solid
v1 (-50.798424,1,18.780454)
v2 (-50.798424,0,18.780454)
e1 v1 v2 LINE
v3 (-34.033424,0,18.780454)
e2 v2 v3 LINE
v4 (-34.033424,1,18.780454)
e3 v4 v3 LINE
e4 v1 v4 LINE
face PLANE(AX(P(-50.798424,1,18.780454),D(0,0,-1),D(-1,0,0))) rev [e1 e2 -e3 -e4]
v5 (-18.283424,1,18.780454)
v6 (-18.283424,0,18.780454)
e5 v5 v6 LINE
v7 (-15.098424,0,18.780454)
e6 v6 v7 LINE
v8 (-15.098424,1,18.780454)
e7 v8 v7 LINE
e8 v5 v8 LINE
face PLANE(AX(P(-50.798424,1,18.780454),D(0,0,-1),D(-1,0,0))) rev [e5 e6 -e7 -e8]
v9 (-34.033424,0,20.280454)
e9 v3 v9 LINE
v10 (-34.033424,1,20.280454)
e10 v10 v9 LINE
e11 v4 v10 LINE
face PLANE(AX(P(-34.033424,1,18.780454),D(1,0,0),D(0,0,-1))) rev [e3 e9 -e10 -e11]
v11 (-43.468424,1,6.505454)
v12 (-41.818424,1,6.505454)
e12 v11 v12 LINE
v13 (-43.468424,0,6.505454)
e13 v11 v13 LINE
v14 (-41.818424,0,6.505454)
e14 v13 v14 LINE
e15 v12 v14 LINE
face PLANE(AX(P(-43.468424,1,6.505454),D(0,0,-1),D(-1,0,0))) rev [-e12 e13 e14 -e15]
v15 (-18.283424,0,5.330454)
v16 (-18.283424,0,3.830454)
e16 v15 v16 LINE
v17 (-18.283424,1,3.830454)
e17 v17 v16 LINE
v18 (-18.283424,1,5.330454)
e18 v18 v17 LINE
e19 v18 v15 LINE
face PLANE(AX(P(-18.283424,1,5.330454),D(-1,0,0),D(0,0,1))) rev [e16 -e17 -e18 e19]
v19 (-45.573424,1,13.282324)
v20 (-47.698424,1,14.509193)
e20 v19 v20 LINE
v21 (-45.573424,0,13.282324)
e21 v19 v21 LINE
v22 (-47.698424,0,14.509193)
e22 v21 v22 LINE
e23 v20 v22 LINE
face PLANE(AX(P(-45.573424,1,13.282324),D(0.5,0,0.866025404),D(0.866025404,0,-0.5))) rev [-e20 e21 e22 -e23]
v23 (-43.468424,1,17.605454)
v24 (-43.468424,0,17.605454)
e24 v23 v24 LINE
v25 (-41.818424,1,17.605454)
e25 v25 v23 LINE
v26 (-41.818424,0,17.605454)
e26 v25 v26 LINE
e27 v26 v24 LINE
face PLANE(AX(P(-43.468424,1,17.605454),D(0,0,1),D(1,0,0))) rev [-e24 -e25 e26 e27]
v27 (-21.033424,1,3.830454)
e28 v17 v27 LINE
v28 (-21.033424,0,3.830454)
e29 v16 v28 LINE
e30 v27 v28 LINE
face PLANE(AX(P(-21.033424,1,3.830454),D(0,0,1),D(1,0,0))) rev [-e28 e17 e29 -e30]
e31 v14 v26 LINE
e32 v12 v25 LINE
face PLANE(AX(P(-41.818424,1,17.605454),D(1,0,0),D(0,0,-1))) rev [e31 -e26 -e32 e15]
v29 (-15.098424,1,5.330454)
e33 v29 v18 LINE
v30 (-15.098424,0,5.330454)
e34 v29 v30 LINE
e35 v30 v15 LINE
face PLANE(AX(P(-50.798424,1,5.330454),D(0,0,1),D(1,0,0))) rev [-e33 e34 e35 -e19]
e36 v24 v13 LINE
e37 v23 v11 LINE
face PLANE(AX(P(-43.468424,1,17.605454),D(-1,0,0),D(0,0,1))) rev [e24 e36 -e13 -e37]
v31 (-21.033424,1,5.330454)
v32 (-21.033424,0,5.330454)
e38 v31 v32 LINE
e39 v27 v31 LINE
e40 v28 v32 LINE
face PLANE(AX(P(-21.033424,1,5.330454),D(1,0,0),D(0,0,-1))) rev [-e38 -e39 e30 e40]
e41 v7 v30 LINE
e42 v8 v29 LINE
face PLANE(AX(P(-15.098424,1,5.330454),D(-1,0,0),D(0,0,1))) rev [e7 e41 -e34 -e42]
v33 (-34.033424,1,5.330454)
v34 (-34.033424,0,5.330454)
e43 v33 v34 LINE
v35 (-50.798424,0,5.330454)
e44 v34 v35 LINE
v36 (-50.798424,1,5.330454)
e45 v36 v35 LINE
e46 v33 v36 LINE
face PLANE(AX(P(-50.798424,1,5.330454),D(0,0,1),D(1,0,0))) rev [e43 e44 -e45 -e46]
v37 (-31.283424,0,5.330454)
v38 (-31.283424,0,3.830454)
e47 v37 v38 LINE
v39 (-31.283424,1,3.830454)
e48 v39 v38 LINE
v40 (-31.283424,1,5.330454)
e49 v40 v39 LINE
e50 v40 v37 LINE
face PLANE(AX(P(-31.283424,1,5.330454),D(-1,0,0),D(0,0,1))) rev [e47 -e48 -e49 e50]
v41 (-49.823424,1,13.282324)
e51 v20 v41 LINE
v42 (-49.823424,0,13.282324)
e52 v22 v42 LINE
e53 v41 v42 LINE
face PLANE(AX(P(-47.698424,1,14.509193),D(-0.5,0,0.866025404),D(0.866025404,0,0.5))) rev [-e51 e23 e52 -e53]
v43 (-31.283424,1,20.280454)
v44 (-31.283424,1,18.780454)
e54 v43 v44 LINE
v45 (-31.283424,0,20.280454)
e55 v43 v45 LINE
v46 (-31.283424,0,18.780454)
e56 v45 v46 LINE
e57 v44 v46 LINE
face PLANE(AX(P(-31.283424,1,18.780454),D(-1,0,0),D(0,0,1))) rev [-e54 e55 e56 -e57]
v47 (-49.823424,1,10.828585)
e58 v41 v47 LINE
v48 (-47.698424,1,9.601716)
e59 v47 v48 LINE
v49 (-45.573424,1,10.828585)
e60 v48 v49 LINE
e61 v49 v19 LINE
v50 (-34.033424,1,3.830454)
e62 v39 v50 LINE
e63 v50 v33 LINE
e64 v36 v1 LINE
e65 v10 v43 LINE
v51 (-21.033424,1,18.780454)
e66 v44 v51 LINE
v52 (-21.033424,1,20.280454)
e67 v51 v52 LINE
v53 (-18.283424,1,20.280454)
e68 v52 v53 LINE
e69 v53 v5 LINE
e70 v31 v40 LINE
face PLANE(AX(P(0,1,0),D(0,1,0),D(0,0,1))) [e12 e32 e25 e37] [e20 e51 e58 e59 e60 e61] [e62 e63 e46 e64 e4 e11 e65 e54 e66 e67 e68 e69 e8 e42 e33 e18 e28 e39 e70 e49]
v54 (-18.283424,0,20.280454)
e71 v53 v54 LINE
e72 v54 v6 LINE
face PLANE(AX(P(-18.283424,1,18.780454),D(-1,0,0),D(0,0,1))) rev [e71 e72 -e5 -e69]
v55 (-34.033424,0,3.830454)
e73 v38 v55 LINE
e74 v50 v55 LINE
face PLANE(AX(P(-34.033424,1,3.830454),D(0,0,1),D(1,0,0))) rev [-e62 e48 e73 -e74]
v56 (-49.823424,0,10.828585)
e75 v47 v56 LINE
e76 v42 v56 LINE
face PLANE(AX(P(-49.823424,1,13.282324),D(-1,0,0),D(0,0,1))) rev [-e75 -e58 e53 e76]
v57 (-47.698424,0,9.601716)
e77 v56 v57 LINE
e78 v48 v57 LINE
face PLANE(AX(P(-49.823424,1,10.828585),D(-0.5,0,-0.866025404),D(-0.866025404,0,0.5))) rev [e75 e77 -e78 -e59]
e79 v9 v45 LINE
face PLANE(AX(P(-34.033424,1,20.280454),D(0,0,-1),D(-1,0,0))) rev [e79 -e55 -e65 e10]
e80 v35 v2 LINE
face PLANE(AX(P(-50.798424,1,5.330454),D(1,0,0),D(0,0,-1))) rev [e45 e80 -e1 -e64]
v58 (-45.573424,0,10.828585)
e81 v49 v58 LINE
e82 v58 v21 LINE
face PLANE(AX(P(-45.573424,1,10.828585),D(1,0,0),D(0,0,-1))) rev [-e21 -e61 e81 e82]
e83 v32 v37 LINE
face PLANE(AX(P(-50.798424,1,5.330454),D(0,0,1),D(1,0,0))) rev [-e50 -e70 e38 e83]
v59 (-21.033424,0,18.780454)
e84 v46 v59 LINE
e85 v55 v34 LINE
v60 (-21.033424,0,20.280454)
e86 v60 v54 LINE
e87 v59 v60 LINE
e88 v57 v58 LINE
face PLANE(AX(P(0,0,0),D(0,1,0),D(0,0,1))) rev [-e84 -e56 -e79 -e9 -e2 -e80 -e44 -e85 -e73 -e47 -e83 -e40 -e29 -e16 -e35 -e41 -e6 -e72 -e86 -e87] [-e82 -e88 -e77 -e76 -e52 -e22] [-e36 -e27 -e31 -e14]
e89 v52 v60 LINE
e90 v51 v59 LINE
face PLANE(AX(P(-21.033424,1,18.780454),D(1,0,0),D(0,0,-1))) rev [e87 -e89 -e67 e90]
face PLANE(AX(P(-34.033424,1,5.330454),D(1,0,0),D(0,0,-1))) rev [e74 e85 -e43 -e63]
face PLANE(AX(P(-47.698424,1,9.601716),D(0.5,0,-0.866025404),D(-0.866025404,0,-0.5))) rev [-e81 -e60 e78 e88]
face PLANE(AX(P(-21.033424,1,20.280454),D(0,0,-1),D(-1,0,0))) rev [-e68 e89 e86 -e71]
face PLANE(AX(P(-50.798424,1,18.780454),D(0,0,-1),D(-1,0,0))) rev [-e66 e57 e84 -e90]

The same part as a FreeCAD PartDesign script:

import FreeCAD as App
import Part
import Sketcher

V = App.Vector
Q = App.Units.Quantity

doc = App.newDocument("Part")
params = doc.addObject("Spreadsheet::Sheet", "Params")
for row, (alias, value) in enumerate([
    ("sketch1_width", "35.7 mm"),
    ("sketch1_height", "13.45 mm"),
    ("pad1_length", "1 mm"),
    ("sketch2_height", "1.5 mm"),
    ("sketch2_width", "2.75 mm"),
    ("pad2_length", "1 mm"),
    ("sketch3_height", "11.1 mm"),
    ("sketch3_width", "1.65 mm"),
    ("pocket1_length", "1 mm"),
    ("pocket2_length", "1 mm"),
], start=1):
    params.set(f"A{row}", alias)
    params.set(f"B{row}", "=" + value)
    params.setAlias(f"B{row}", alias)

body = doc.addObject("PartDesign::Body", "Body")

# Sketch on XZ plane
sketch1 = body.newObject("Sketcher::SketchObject", "Sketch")
sketch1.AttachmentSupport = (doc.getObject("XZ_Plane"), [""])
sketch1.MapMode = "FlatFace"
sketch1.addGeometry(Part.LineSegment(V(-51, 5, 0), V(-51, 19, 0)), False)
sketch1.addGeometry(Part.LineSegment(V(-51, 19, 0), V(-15, 19, 0)), False)
sketch1.addGeometry(Part.LineSegment(V(-15, 19, 0), V(-15, 5, 0)), False)
sketch1.addGeometry(Part.LineSegment(V(-15, 5, 0), V(-51, 5, 0)), False)
sketch1.addConstraint(Sketcher.Constraint("Coincident", 0, 2, 1, 1))
sketch1.addConstraint(Sketcher.Constraint("Coincident", 1, 2, 2, 1))
sketch1.addConstraint(Sketcher.Constraint("Coincident", 2, 2, 3, 1))
sketch1.addConstraint(Sketcher.Constraint("Coincident", 3, 2, 0, 1))
sketch1.addConstraint(Sketcher.Constraint("Vertical", 0))
sketch1.addConstraint(Sketcher.Constraint("Horizontal", 1))
sketch1.addConstraint(Sketcher.Constraint("Vertical", 2))
sketch1.addConstraint(Sketcher.Constraint("Horizontal", 3))
sketch1.addConstraint(Sketcher.Constraint("DistanceX", 1, 1, 1, 2, 35.7))
sketch1.addConstraint(Sketcher.Constraint("DistanceY", 0, 1, 0, 2, 13.45))
sketch1.addConstraint(Sketcher.Constraint("DistanceX", 0, 2, -1, 1, 50.798424))
sketch1.addConstraint(Sketcher.Constraint("DistanceY", -1, 1, 0, 2, 18.780454))
sketch1.setExpression("Constraints[8]", "Params.sketch1_width")
sketch1.setExpression("Constraints[9]", "Params.sketch1_height")
pad1 = body.newObject("PartDesign::Pad", "Pad")
pad1.Profile = sketch1
pad1.setExpression("Length", "Params.pad1_length")
pad1.Reversed = True

# Sketch on XZ plane
sketch2 = body.newObject("Sketcher::SketchObject", "Sketch001")
sketch2.AttachmentSupport = (doc.getObject("XZ_Plane"), [""])
sketch2.MapMode = "FlatFace"
sketch2.addGeometry(Part.LineSegment(V(-34, 3.8, 0), V(-34, 5.3, 0)), False)
sketch2.addGeometry(Part.LineSegment(V(-34, 5.3, 0), V(-31.3, 5.3, 0)), False)
sketch2.addGeometry(Part.LineSegment(V(-31.3, 5.3, 0), V(-31.3, 3.8, 0)), False)
sketch2.addGeometry(Part.LineSegment(V(-31.3, 3.8, 0), V(-34, 3.8, 0)), False)
sketch2.addGeometry(Part.LineSegment(V(-34, 18.8, 0), V(-34, 20.3, 0)), False)
sketch2.addGeometry(Part.LineSegment(V(-34, 20.3, 0), V(-31.3, 20.3, 0)), False)
sketch2.addGeometry(Part.LineSegment(V(-31.3, 20.3, 0), V(-31.3, 18.8, 0)), False)
sketch2.addGeometry(Part.LineSegment(V(-31.3, 18.8, 0), V(-34, 18.8, 0)), False)
sketch2.addGeometry(Part.LineSegment(V(-21, 3.8, 0), V(-21, 5.3, 0)), False)
sketch2.addGeometry(Part.LineSegment(V(-21, 5.3, 0), V(-18.3, 5.3, 0)), False)
sketch2.addGeometry(Part.LineSegment(V(-18.3, 5.3, 0), V(-18.3, 3.8, 0)), False)
sketch2.addGeometry(Part.LineSegment(V(-18.3, 3.8, 0), V(-21, 3.8, 0)), False)
sketch2.addGeometry(Part.LineSegment(V(-21, 18.8, 0), V(-21, 20.3, 0)), False)
sketch2.addGeometry(Part.LineSegment(V(-21, 20.3, 0), V(-18.3, 20.3, 0)), False)
sketch2.addGeometry(Part.LineSegment(V(-18.3, 20.3, 0), V(-18.3, 18.8, 0)), False)
sketch2.addGeometry(Part.LineSegment(V(-18.3, 18.8, 0), V(-21, 18.8, 0)), False)
sketch2.addConstraint(Sketcher.Constraint("Coincident", 0, 2, 1, 1))
sketch2.addConstraint(Sketcher.Constraint("Coincident", 1, 2, 2, 1))
sketch2.addConstraint(Sketcher.Constraint("Coincident", 2, 2, 3, 1))
sketch2.addConstraint(Sketcher.Constraint("Coincident", 3, 2, 0, 1))
sketch2.addConstraint(Sketcher.Constraint("Coincident", 4, 2, 5, 1))
sketch2.addConstraint(Sketcher.Constraint("Coincident", 5, 2, 6, 1))
sketch2.addConstraint(Sketcher.Constraint("Coincident", 6, 2, 7, 1))
sketch2.addConstraint(Sketcher.Constraint("Coincident", 7, 2, 4, 1))
sketch2.addConstraint(Sketcher.Constraint("Coincident", 8, 2, 9, 1))
sketch2.addConstraint(Sketcher.Constraint("Coincident", 9, 2, 10, 1))
sketch2.addConstraint(Sketcher.Constraint("Coincident", 10, 2, 11, 1))
sketch2.addConstraint(Sketcher.Constraint("Coincident", 11, 2, 8, 1))
sketch2.addConstraint(Sketcher.Constraint("Coincident", 12, 2, 13, 1))
sketch2.addConstraint(Sketcher.Constraint("Coincident", 13, 2, 14, 1))
sketch2.addConstraint(Sketcher.Constraint("Coincident", 14, 2, 15, 1))
sketch2.addConstraint(Sketcher.Constraint("Coincident", 15, 2, 12, 1))
sketch2.addConstraint(Sketcher.Constraint("Vertical", 0))
sketch2.addConstraint(Sketcher.Constraint("Horizontal", 1))
sketch2.addConstraint(Sketcher.Constraint("Vertical", 2))
sketch2.addConstraint(Sketcher.Constraint("Horizontal", 3))
sketch2.addConstraint(Sketcher.Constraint("Vertical", 4))
sketch2.addConstraint(Sketcher.Constraint("Horizontal", 5))
sketch2.addConstraint(Sketcher.Constraint("Vertical", 6))
sketch2.addConstraint(Sketcher.Constraint("Horizontal", 7))
sketch2.addConstraint(Sketcher.Constraint("Vertical", 8))
sketch2.addConstraint(Sketcher.Constraint("Horizontal", 9))
sketch2.addConstraint(Sketcher.Constraint("Vertical", 10))
sketch2.addConstraint(Sketcher.Constraint("Horizontal", 11))
sketch2.addConstraint(Sketcher.Constraint("Vertical", 12))
sketch2.addConstraint(Sketcher.Constraint("Horizontal", 13))
sketch2.addConstraint(Sketcher.Constraint("Vertical", 14))
sketch2.addConstraint(Sketcher.Constraint("Horizontal", 15))
sketch2.addConstraint(Sketcher.Constraint("Horizontal", 1, 2, 8, 2))
sketch2.addConstraint(Sketcher.Constraint("Horizontal", 3, 2, 10, 2))
sketch2.addConstraint(Sketcher.Constraint("Horizontal", 5, 2, 12, 2))
sketch2.addConstraint(Sketcher.Constraint("Horizontal", 7, 2, 14, 2))
sketch2.addConstraint(Sketcher.Constraint("Vertical", 3, 2, 4, 2))
sketch2.addConstraint(Sketcher.Constraint("Vertical", 2, 2, 5, 2))
sketch2.addConstraint(Sketcher.Constraint("Vertical", 11, 2, 12, 2))
sketch2.addConstraint(Sketcher.Constraint("Vertical", 10, 2, 13, 2))
sketch2.addConstraint(Sketcher.Constraint("Equal", 7, 9))
sketch2.addConstraint(Sketcher.Constraint("Equal", 2, 4))
sketch2.addConstraint(Sketcher.Constraint("DistanceY", 0, 1, 0, 2, 1.5))
sketch2.addConstraint(Sketcher.Constraint("DistanceX", 0, 2, 8, 2, 13.0))
sketch2.addConstraint(Sketcher.Constraint("DistanceX", 1, 1, 1, 2, 2.75))
sketch2.addConstraint(Sketcher.Constraint("DistanceY", 0, 2, 4, 2, 14.95))
sketch2.addConstraint(Sketcher.Constraint("DistanceX", 0, 2, -1, 1, 34.033424))
sketch2.addConstraint(Sketcher.Constraint("DistanceY", -1, 1, 0, 2, 5.330454))
sketch2.setExpression("Constraints[42]", "Params.sketch2_height")
sketch2.setExpression("Constraints[44]", "Params.sketch2_width")
pad2 = body.newObject("PartDesign::Pad", "Pad001")
pad2.Profile = sketch2
pad2.setExpression("Length", "Params.pad2_length")
pad2.Reversed = True

# Sketch on XZ plane
sketch3 = body.newObject("Sketcher::SketchObject", "Sketch002")
sketch3.AttachmentSupport = (doc.getObject("XZ_Plane"), [""])
sketch3.MapMode = "FlatFace"
sketch3.addGeometry(Part.LineSegment(V(-41.8, 6.5, 0), V(-41.8, 17.6, 0)), False)
sketch3.addGeometry(Part.LineSegment(V(-41.8, 17.6, 0), V(-43.5, 17.6, 0)), False)
sketch3.addGeometry(Part.LineSegment(V(-43.5, 17.6, 0), V(-43.5, 6.5, 0)), False)
sketch3.addGeometry(Part.LineSegment(V(-43.5, 6.5, 0), V(-41.8, 6.5, 0)), False)
sketch3.addConstraint(Sketcher.Constraint("Coincident", 0, 2, 1, 1))
sketch3.addConstraint(Sketcher.Constraint("Coincident", 1, 2, 2, 1))
sketch3.addConstraint(Sketcher.Constraint("Coincident", 2, 2, 3, 1))
sketch3.addConstraint(Sketcher.Constraint("Coincident", 3, 2, 0, 1))
sketch3.addConstraint(Sketcher.Constraint("Vertical", 0))
sketch3.addConstraint(Sketcher.Constraint("Horizontal", 1))
sketch3.addConstraint(Sketcher.Constraint("Vertical", 2))
sketch3.addConstraint(Sketcher.Constraint("Horizontal", 3))
sketch3.addConstraint(Sketcher.Constraint("DistanceY", 0, 1, 0, 2, 11.1))
sketch3.addConstraint(Sketcher.Constraint("DistanceX", 1, 2, 1, 1, 1.65))
sketch3.addConstraint(Sketcher.Constraint("DistanceX", 0, 2, -1, 1, 41.818424))
sketch3.addConstraint(Sketcher.Constraint("DistanceY", -1, 1, 0, 2, 17.605454))
sketch3.setExpression("Constraints[8]", "Params.sketch3_height")
sketch3.setExpression("Constraints[9]", "Params.sketch3_width")
pocket1 = body.newObject("PartDesign::Pocket", "Pocket")
pocket1.Profile = sketch3
pocket1.setExpression("Length", "Params.pocket1_length")

# Sketch on XZ plane
sketch4 = body.newObject("Sketcher::SketchObject", "Sketch003")
sketch4.AttachmentSupport = (doc.getObject("XZ_Plane"), [""])
sketch4.MapMode = "FlatFace"
sketch4.addGeometry(Part.LineSegment(V(-49.8, 13.3, 0), V(-49.8, 10.8, 0)), False)
sketch4.addGeometry(Part.LineSegment(V(-49.8, 10.8, 0), V(-47.7, 9.6, 0)), False)
sketch4.addGeometry(Part.LineSegment(V(-47.7, 9.6, 0), V(-45.6, 10.8, 0)), False)
sketch4.addGeometry(Part.LineSegment(V(-45.6, 10.8, 0), V(-45.6, 13.3, 0)), False)
sketch4.addGeometry(Part.LineSegment(V(-45.6, 13.3, 0), V(-47.7, 14.5, 0)), False)
sketch4.addGeometry(Part.LineSegment(V(-47.7, 14.5, 0), V(-49.8, 13.3, 0)), False)
sketch4.addConstraint(Sketcher.Constraint("Coincident", 0, 2, 1, 1))
sketch4.addConstraint(Sketcher.Constraint("Coincident", 1, 2, 2, 1))
sketch4.addConstraint(Sketcher.Constraint("Coincident", 2, 2, 3, 1))
sketch4.addConstraint(Sketcher.Constraint("Coincident", 3, 2, 4, 1))
sketch4.addConstraint(Sketcher.Constraint("Coincident", 4, 2, 5, 1))
sketch4.addConstraint(Sketcher.Constraint("Coincident", 5, 2, 0, 1))
sketch4.addConstraint(Sketcher.Constraint("Vertical", 0))
sketch4.addConstraint(Sketcher.Constraint("Vertical", 3))
sketch4.addConstraint(Sketcher.Constraint("Parallel", 1, 4))
sketch4.addConstraint(Sketcher.Constraint("Parallel", 2, 5))
sketch4.addConstraint(Sketcher.Constraint("Horizontal", 0, 2, 2, 2))
sketch4.addConstraint(Sketcher.Constraint("Horizontal", 3, 2, 5, 2))
sketch4.addConstraint(Sketcher.Constraint("Vertical", 1, 2, 4, 2))
sketch4.addConstraint(Sketcher.Constraint("Angle", 1, Q("-30 deg")))
sketch4.addConstraint(Sketcher.Constraint("DistanceX", 0, 2, 2, 2, 4.25))
sketch4.addConstraint(Sketcher.Constraint("DistanceY", 0, 2, 0, 1, 2.453739))
sketch4.addConstraint(Sketcher.Constraint("DistanceX", 0, 2, -1, 1, 49.823424))
sketch4.addConstraint(Sketcher.Constraint("DistanceY", -1, 1, 0, 2, 10.828585))
pocket2 = body.newObject("PartDesign::Pocket", "Pocket001")
pocket2.Profile = sketch4
pocket2.setExpression("Length", "Params.pocket2_length")

doc.recompute()
